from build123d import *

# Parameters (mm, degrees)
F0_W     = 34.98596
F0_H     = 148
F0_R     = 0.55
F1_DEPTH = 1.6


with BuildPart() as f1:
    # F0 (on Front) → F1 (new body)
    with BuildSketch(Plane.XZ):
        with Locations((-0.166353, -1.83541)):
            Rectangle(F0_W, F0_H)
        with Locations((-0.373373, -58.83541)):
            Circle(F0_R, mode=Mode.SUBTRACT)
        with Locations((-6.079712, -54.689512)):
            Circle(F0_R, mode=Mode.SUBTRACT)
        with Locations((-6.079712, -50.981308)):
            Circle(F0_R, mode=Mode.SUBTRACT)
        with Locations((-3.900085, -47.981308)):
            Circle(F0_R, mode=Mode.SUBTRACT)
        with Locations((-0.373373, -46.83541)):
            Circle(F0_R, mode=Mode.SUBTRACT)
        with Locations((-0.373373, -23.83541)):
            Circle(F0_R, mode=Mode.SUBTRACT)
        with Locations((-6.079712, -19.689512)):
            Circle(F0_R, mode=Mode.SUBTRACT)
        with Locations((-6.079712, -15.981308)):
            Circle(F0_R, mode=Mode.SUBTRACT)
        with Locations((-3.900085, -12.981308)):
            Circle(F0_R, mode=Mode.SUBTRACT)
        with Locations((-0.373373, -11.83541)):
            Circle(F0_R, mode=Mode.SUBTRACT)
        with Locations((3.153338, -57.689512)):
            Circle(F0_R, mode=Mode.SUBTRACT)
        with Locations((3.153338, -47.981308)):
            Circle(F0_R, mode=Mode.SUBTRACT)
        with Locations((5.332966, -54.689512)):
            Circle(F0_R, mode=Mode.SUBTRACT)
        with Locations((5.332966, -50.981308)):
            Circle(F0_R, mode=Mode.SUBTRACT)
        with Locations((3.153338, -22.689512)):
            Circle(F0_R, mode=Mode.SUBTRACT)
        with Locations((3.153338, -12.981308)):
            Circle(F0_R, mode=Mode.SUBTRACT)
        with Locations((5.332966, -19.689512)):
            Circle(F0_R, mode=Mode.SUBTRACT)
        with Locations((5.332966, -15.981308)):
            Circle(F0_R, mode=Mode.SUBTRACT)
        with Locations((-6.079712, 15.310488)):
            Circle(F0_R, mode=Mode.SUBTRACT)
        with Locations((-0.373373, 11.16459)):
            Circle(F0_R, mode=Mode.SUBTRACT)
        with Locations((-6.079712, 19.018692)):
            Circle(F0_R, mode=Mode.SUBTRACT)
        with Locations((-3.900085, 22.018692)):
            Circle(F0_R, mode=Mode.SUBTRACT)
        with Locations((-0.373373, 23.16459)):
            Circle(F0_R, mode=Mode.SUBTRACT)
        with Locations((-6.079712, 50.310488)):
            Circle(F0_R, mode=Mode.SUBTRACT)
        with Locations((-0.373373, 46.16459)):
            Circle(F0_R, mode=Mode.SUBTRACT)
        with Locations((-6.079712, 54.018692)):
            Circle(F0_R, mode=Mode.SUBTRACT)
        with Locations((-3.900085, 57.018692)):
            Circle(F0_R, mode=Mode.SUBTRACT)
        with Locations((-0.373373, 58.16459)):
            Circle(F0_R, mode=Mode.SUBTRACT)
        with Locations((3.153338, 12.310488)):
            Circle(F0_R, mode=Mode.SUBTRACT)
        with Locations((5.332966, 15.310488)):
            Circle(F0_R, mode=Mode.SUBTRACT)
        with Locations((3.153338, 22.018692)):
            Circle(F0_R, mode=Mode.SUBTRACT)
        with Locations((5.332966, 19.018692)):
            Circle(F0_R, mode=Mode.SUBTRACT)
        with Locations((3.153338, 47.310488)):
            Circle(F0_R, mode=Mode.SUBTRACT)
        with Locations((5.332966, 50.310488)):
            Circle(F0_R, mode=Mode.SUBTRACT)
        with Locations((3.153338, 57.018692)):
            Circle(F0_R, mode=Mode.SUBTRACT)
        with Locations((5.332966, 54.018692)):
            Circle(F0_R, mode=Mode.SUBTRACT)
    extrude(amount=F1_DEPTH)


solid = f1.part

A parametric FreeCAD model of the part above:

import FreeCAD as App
import Part
import Sketcher
from FreeCAD import Vector
Q = App.Units.Quantity


def add_polygon(sketch, points):
    """Adds a closed chain of lines whose ends are joined by coincident constraints."""
    first, n = sketch.GeometryCount, len(points)
    for a, b in zip(points, points[1:] + points[:1]):
        sketch.addGeometry(Part.LineSegment(App.Vector(*a, 0), App.Vector(*b, 0)), False)
    for i in range(n):
        sketch.addConstraint(Sketcher.Constraint("Coincident", first + i, 2, first + (i + 1) % n, 1))

doc = App.newDocument("Part")
body = doc.addObject("PartDesign::Body", "Body")

# Sketch on XZ plane
sketch1 = body.newObject("Sketcher::SketchObject", "Sketch")
sketch1.AttachmentSupport = (doc.getObject("XZ_Plane"), [""])
sketch1.MapMode = "FlatFace"
add_polygon(sketch1, [(-17.7, 72.2), (-17.7, -75.8), (17.3, -75.8), (17.3, 72.2)])  # lines 0-3
sketch1.addGeometry(Part.Circle(Vector(-6.1, -54.7, 0), Vector(0, 0, 1), 0.6), False)  # 4
sketch1.addGeometry(Part.Circle(Vector(-6.1, -51, 0), Vector(0, 0, 1), 0.6), False)  # 5
sketch1.addGeometry(Part.Circle(Vector(-3.9, -48, 0), Vector(0, 0, 1), 0.6), False)  # 6
sketch1.addGeometry(Part.Circle(Vector(-0.4, -58.8, 0), Vector(0, 0, 1), 0.6), False)  # 7
sketch1.addGeometry(Part.Circle(Vector(-0.4, -46.8, 0), Vector(0, 0, 1), 0.6), False)  # 8
sketch1.addGeometry(Part.Circle(Vector(-6.1, -19.7, 0), Vector(0, 0, 1), 0.6), False)  # 9
sketch1.addGeometry(Part.Circle(Vector(-6.1, -16, 0), Vector(0, 0, 1), 0.6), False)  # 10
sketch1.addGeometry(Part.Circle(Vector(-3.9, -13, 0), Vector(0, 0, 1), 0.6), False)  # 11
sketch1.addGeometry(Part.Circle(Vector(-0.4, -23.8, 0), Vector(0, 0, 1), 0.6), False)  # 12
sketch1.addGeometry(Part.Circle(Vector(-0.4, -11.8, 0), Vector(0, 0, 1), 0.6), False)  # 13
sketch1.addGeometry(Part.Circle(Vector(3.2, -57.7, 0), Vector(0, 0, 1), 0.6), False)  # 14
sketch1.addGeometry(Part.Circle(Vector(3.2, -48, 0), Vector(0, 0, 1), 0.6), False)  # 15
sketch1.addGeometry(Part.Circle(Vector(5.3, -54.7, 0), Vector(0, 0, 1), 0.6), False)  # 16
sketch1.addGeometry(Part.Circle(Vector(5.3, -51, 0), Vector(0, 0, 1), 0.6), False)  # 17
sketch1.addGeometry(Part.Circle(Vector(3.2, -22.7, 0), Vector(0, 0, 1), 0.6), False)  # 18
sketch1.addGeometry(Part.Circle(Vector(5.3, -19.7, 0), Vector(0, 0, 1), 0.6), False)  # 19
sketch1.addGeometry(Part.Circle(Vector(5.3, -16, 0), Vector(0, 0, 1), 0.6), False)  # 20
sketch1.addGeometry(Part.Circle(Vector(3.2, -13, 0), Vector(0, 0, 1), 0.6), False)  # 21
sketch1.addGeometry(Part.Circle(Vector(-6.1, 15.3, 0), Vector(0, 0, 1), 0.6), False)  # 22
sketch1.addGeometry(Part.Circle(Vector(-6.1, 19, 0), Vector(0, 0, 1), 0.6), False)  # 23
sketch1.addGeometry(Part.Circle(Vector(-3.9, 22, 0), Vector(0, 0, 1), 0.6), False)  # 24
sketch1.addGeometry(Part.Circle(Vector(-0.4, 11.2, 0), Vector(0, 0, 1), 0.6), False)  # 25
sketch1.addGeometry(Part.Circle(Vector(-0.4, 23.2, 0), Vector(0, 0, 1), 0.6), False)  # 26
sketch1.addGeometry(Part.Circle(Vector(-6.1, 50.3, 0), Vector(0, 0, 1), 0.6), False)  # 27
sketch1.addGeometry(Part.Circle(Vector(-6.1, 54, 0), Vector(0, 0, 1), 0.6), False)  # 28
sketch1.addGeometry(Part.Circle(Vector(-3.9, 57, 0), Vector(0, 0, 1), 0.6), False)  # 29
sketch1.addGeometry(Part.Circle(Vector(-0.4, 46.2, 0), Vector(0, 0, 1), 0.6), False)  # 30
sketch1.addGeometry(Part.Circle(Vector(-0.4, 58.2, 0), Vector(0, 0, 1), 0.6), False)  # 31
sketch1.addGeometry(Part.Circle(Vector(3.2, 12.3, 0), Vector(0, 0, 1), 0.6), False)  # 32
sketch1.addGeometry(Part.Circle(Vector(3.2, 22, 0), Vector(0, 0, 1), 0.6), False)  # 33
sketch1.addGeometry(Part.Circle(Vector(5.3, 15.3, 0), Vector(0, 0, 1), 0.6), False)  # 34
sketch1.addGeometry(Part.Circle(Vector(5.3, 19, 0), Vector(0, 0, 1), 0.6), False)  # 35
sketch1.addGeometry(Part.Circle(Vector(3.2, 47.3, 0), Vector(0, 0, 1), 0.6), False)  # 36
sketch1.addGeometry(Part.Circle(Vector(3.2, 57, 0), Vector(0, 0, 1), 0.6), False)  # 37
sketch1.addGeometry(Part.Circle(Vector(5.3, 50.3, 0), Vector(0, 0, 1), 0.6), False)  # 38
sketch1.addGeometry(Part.Circle(Vector(5.3, 54, 0), Vector(0, 0, 1), 0.6), False)  # 39
sketch1.addConstraint([
    Sketcher.Constraint("Vertical", 0),
    Sketcher.Constraint("Horizontal", 1),
    Sketcher.Constraint("Vertical", 2),
    Sketcher.Constraint("Horizontal", 3),
    Sketcher.Constraint("Equal", 4, 5),
    Sketcher.Constraint("Equal", 5, 6),
    Sketcher.Constraint("Equal", 6, 7),
    Sketcher.Constraint("Equal", 7, 8),
    Sketcher.Constraint("Equal", 8, 9),
    Sketcher.Constraint("Equal", 9, 10),
    Sketcher.Constraint("Equal", 10, 11),
    Sketcher.Constraint("Equal", 11, 12),
    Sketcher.Constraint("Equal", 12, 13),
    Sketcher.Constraint("Equal", 13, 14),
    Sketcher.Constraint("Equal", 14, 15),
    Sketcher.Constraint("Equal", 15, 16),
    Sketcher.Constraint("Equal", 16, 17),
    Sketcher.Constraint("Equal", 17, 18),
    Sketcher.Constraint("Equal", 18, 19),
    Sketcher.Constraint("Equal", 19, 20),
    Sketcher.Constraint("Equal", 20, 21),
    Sketcher.Constraint("Equal", 21, 22),
    Sketcher.Constraint("Equal", 22, 23),
    Sketcher.Constraint("Equal", 23, 24),
    Sketcher.Constraint("Equal", 24, 25),
    Sketcher.Constraint("Equal", 25, 26),
    Sketcher.Constraint("Equal", 26, 27),
    Sketcher.Constraint("Equal", 27, 28),
    Sketcher.Constraint("Equal", 28, 29),
    Sketcher.Constraint("Equal", 29, 30),
    Sketcher.Constraint("Equal", 30, 31),
    Sketcher.Constraint("Equal", 31, 32),
    Sketcher.Constraint("Equal", 32, 33),
    Sketcher.Constraint("Equal", 33, 34),
    Sketcher.Constraint("Equal", 34, 35),
    Sketcher.Constraint("Equal", 35, 36),
    Sketcher.Constraint("Equal", 36, 37),
    Sketcher.Constraint("Equal", 37, 38),
    Sketcher.Constraint("Equal", 38, 39),
    Sketcher.Constraint("Horizontal", 6, 3, 15, 3),
    Sketcher.Constraint("Horizontal", 4, 3, 16, 3),
    Sketcher.Constraint("Horizontal", 5, 3, 17, 3),
    Sketcher.Constraint("Horizontal", 9, 3, 19, 3),
    Sketcher.Constraint("Horizontal", 10, 3, 20, 3),
    Sketcher.Constraint("Horizontal", 11, 3, 21, 3),
    Sketcher.Constraint("Horizontal", 24, 3, 33, 3),
    Sketcher.Constraint("Horizontal", 22, 3, 34, 3),
    Sketcher.Constraint("Horizontal", 23, 3, 35, 3),
    Sketcher.Constraint("Horizontal", 29, 3, 37, 3),
    Sketcher.Constraint("Horizontal", 27, 3, 38, 3),
    Sketcher.Constraint("Horizontal", 28, 3, 39, 3),
    Sketcher.Constraint("Vertical", 4, 3, 5, 3),
    Sketcher.Constraint("Vertical", 7, 3, 8, 3),
    Sketcher.Constraint("Vertical", 5, 3, 9, 3),
    Sketcher.Constraint("Vertical", 9, 3, 10, 3),
    Sketcher.Constraint("Vertical", 6, 3, 11, 3),
    Sketcher.Constraint("Vertical", 8, 3, 12, 3),
    Sketcher.Constraint("Vertical", 12, 3, 13, 3),
    Sketcher.Constraint("Vertical", 14, 3, 15, 3),
    Sketcher.Constraint("Vertical", 16, 3, 17, 3),
    Sketcher.Constraint("Vertical", 15, 3, 18, 3),
    Sketcher.Constraint("Vertical", 17, 3, 19, 3),
    Sketcher.Constraint("Vertical", 19, 3, 20, 3),
    Sketcher.Constraint("Vertical", 18, 3, 21, 3),
    Sketcher.Constraint("Vertical", 10, 3, 22, 3),
    Sketcher.Constraint("Vertical", 22, 3, 23, 3),
    Sketcher.Constraint("Vertical", 11, 3, 24, 3),
    Sketcher.Constraint("Vertical", 13, 3, 25, 3),
    Sketcher.Constraint("Vertical", 25, 3, 26, 3),
    Sketcher.Constraint("Vertical", 23, 3, 27, 3),
    Sketcher.Constraint("Vertical", 27, 3, 28, 3),
    Sketcher.Constraint("Vertical", 24, 3, 29, 3),
    Sketcher.Constraint("Vertical", 26, 3, 30, 3),
    Sketcher.Constraint("Vertical", 30, 3, 31, 3),
    Sketcher.Constraint("Vertical", 21, 3, 32, 3),
    Sketcher.Constraint("Vertical", 32, 3, 33, 3),
    Sketcher.Constraint("Vertical", 20, 3, 34, 3),
    Sketcher.Constraint("Vertical", 34, 3, 35, 3),
    Sketcher.Constraint("Vertical", 33, 3, 36, 3),
    Sketcher.Constraint("Vertical", 36, 3, 37, 3),
    Sketcher.Constraint("Vertical", 35, 3, 38, 3),
    Sketcher.Constraint("Vertical", 38, 3, 39, 3),
    Sketcher.Constraint("Diameter", 4, Q("1.1 mm")),
    Sketcher.Constraint("DistanceY", 0, 2, 0, 1, Q("148 mm")),
    Sketcher.Constraint("DistanceY", 5, 3, 6, 3, Q("3 mm")),
    Sketcher.Constraint("DistanceY", 7, 3, 8, 3, Q("12 mm")),
    Sketcher.Constraint("DistanceY", 4, 3, 9, 3, Q("35 mm")),
    Sketcher.Constraint("DistanceY", 6, 3, 10, 3, Q("32 mm")),
    Sketcher.Constraint("DistanceY", 10, 3, 11, 3, Q("3 mm")),
    Sketcher.Constraint("DistanceY", 8, 3, 12, 3, Q("23 mm")),
    Sketcher.Constraint("DistanceY", 12, 3, 13, 3, Q("12 mm")),
    Sketcher.Constraint("DistanceY", 14, 3, 4, 3, Q("3 mm")),
    Sketcher.Constraint("DistanceY", 18, 3, 9, 3, Q("3 mm")),
    Sketcher.Constraint("DistanceY", 11, 3, 23, 3, Q("32 mm")),
    Sketcher.Constraint("DistanceY", 23, 3, 24, 3, Q("3 mm")),
    Sketcher.Constraint("DistanceY", 13, 3, 25, 3, Q("23 mm")),
    Sketcher.Constraint("DistanceY", 25, 3, 26, 3, Q("12 mm")),
    Sketcher.Constraint("DistanceY", 22, 3, 27, 3, Q("35 mm")),
    Sketcher.Constraint("DistanceY", 24, 3, 28, 3, Q("32 mm")),
    Sketcher.Constraint("DistanceY", 28, 3, 29, 3, Q("3 mm")),
    Sketcher.Constraint("DistanceY", 26, 3, 30, 3, Q("23 mm")),
    Sketcher.Constraint("DistanceY", 30, 3, 31, 3, Q("12 mm")),
    Sketcher.Constraint("DistanceY", 32, 3, 22, 3, Q("3 mm")),
    Sketcher.Constraint("DistanceY", 36, 3, 27, 3, Q("3 mm")),
    Sketcher.Constraint("DistanceY", 0, 2, 7, 3, Q("17 mm")),
    Sketcher.Constraint("DistanceX", 7, 3, 1, 2, Q("17.7 mm")),
    Sketcher.Constraint("DistanceX", 1, 1, 1, 2, Q("34.98596 mm")),
    Sketcher.Constraint("DistanceY", 7, 3, 4, 3, Q("4.145898 mm")),
    Sketcher.Constraint("DistanceY", 12, 3, 10, 3, Q("7.854102 mm")),
    Sketcher.Constraint("DistanceY", 25, 3, 27, 3, Q("39.145898 mm")),
    Sketcher.Constraint("DistanceX", 4, 3, -1, 1, Q("6.079712 mm")),
    Sketcher.Constraint("DistanceY", 7, 3, -1, 1, Q("58.83541 mm")),
    Sketcher.Constraint("DistanceX", -1, 1, 14, 3, Q("3.153338 mm")),
    Sketcher.Constraint("DistanceX", 4, 3, 7, 3, Q("5.706339 mm")),
    Sketcher.Constraint("DistanceX", 6, 3, 7, 3, Q("3.526712 mm")),
    Sketcher.Constraint("DistanceX", 7, 3, 16, 3, Q("5.706339 mm")),
])
pad1 = body.newObject("PartDesign::Pad", "Pad")
pad1.Profile = sketch1
pad1.Length = 1.6

doc.recompute()
